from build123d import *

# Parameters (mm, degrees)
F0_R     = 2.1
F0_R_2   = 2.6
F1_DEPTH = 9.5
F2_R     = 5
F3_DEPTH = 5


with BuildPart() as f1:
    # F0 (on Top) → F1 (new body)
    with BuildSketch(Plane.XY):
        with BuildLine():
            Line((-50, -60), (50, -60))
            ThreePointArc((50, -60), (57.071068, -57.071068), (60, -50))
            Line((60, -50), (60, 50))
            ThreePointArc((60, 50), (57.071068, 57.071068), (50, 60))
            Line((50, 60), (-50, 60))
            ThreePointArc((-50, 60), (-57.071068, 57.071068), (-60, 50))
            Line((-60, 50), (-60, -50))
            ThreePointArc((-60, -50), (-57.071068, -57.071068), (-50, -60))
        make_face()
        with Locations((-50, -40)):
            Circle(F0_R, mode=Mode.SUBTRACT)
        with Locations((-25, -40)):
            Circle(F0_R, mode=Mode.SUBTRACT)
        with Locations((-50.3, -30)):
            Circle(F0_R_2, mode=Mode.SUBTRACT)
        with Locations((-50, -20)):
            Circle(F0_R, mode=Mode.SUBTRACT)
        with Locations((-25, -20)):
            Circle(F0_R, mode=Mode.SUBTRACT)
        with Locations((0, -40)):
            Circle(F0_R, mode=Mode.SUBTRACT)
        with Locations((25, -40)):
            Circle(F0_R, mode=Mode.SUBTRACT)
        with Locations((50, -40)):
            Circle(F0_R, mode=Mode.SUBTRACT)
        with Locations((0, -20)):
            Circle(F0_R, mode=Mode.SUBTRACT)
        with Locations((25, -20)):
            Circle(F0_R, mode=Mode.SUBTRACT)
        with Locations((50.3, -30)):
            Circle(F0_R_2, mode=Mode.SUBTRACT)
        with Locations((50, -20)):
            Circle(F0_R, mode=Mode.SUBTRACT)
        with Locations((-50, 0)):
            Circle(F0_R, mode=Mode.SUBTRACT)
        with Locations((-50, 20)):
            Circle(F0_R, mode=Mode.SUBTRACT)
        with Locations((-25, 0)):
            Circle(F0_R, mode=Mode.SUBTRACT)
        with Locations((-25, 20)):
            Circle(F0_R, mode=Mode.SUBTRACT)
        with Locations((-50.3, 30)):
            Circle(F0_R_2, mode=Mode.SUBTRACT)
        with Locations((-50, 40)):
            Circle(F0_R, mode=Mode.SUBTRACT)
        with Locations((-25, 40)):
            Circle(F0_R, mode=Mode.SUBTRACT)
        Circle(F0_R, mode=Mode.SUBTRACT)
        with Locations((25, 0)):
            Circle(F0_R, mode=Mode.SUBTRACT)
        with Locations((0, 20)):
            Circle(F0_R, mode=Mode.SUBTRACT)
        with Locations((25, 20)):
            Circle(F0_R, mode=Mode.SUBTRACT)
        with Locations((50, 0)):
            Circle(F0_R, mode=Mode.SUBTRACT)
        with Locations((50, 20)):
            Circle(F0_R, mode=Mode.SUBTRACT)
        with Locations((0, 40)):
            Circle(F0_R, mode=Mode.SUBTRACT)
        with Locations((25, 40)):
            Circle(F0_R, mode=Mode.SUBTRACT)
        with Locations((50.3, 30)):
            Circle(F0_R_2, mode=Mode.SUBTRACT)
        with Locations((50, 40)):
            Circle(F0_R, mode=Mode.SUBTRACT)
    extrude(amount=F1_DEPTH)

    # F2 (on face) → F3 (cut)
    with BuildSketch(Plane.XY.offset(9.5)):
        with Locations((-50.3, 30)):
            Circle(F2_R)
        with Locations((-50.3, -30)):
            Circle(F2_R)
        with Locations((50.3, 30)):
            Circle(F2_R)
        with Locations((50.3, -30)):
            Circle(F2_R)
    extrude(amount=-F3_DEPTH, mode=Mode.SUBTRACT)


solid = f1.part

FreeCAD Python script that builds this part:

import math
import FreeCAD as App
import Part
import Sketcher

V = App.Vector
Q = App.Units.Quantity

doc = App.newDocument("Part")
body = doc.addObject("PartDesign::Body", "Body")

# Sketch on XY plane
sketch1 = body.newObject("Sketcher::SketchObject", "Sketch")
sketch1.AttachmentSupport = (doc.getObject("XY_Plane"), [""])
sketch1.MapMode = "FlatFace"
sketch1.addGeometry([
    Part.LineSegment(V(-50, -60, 0), V(50, -60, 0)),  # 0
    Part.ArcOfCircle(Part.Circle(V(50.000001, -50.000001, 0), V(0, 0, 1), 9.999999), math.radians(-90.000004), math.radians(0.000004)),  # 1
    Part.LineSegment(V(60, -50, 0), V(60, 50, 0)),  # 2
    Part.ArcOfCircle(Part.Circle(V(50.000001, 50.000001, 0), V(0, 0, 1), 9.999999), math.radians(-0.000004), math.radians(90.000004)),  # 3
    Part.LineSegment(V(50, 60, 0), V(-50, 60, 0)),  # 4
    Part.ArcOfCircle(Part.Circle(V(-50.000001, 50.000001, 0), V(0, 0, 1), 9.999999), math.radians(89.999996), math.radians(180.000004)),  # 5
    Part.LineSegment(V(-60, 50, 0), V(-60, -50, 0)),  # 6
    Part.ArcOfCircle(Part.Circle(V(-50.000001, -50.000001, 0), V(0, 0, 1), 9.999999), math.radians(179.999996), math.radians(270.000004)),  # 7
    Part.Circle(V(-50, -40, 0), V(0, 0, 1), 2.1),  # 8
    Part.Circle(V(-50.3, -30, 0), V(0, 0, 1), 2.6),  # 9
    Part.Circle(V(-25, -40, 0), V(0, 0, 1), 2.1),  # 10
    Part.Circle(V(-50, -20, 0), V(0, 0, 1), 2.1),  # 11
    Part.Circle(V(-25, -20, 0), V(0, 0, 1), 2.1),  # 12
    Part.Circle(V(0, -40, 0), V(0, 0, 1), 2.1),  # 13
    Part.Circle(V(25, -40, 0), V(0, 0, 1), 2.1),  # 14
    Part.Circle(V(50, -40, 0), V(0, 0, 1), 2.1),  # 15
    Part.Circle(V(50.3, -30, 0), V(0, 0, 1), 2.6),  # 16
    Part.Circle(V(0, -20, 0), V(0, 0, 1), 2.1),  # 17
    Part.Circle(V(25, -20, 0), V(0, 0, 1), 2.1),  # 18
    Part.Circle(V(50, -20, 0), V(0, 0, 1), 2.1),  # 19
    Part.Circle(V(-50, 0, 0), V(0, 0, 1), 2.1),  # 20
    Part.Circle(V(-50, 20, 0), V(0, 0, 1), 2.1),  # 21
    Part.Circle(V(-25, 0, 0), V(0, 0, 1), 2.1),  # 22
    Part.Circle(V(-25, 20, 0), V(0, 0, 1), 2.1),  # 23
    Part.Circle(V(-50.3, 30, 0), V(0, 0, 1), 2.6),  # 24
    Part.Circle(V(-50, 40, 0), V(0, 0, 1), 2.1),  # 25
    Part.Circle(V(-25, 40, 0), V(0, 0, 1), 2.1),  # 26
    Part.Circle(V(0, 0, 0), V(0, 0, 1), 2.1),  # 27
    Part.Circle(V(25, 0, 0), V(0, 0, 1), 2.1),  # 28
    Part.Circle(V(0, 20, 0), V(0, 0, 1), 2.1),  # 29
    Part.Circle(V(25, 20, 0), V(0, 0, 1), 2.1),  # 30
    Part.Circle(V(50, 0, 0), V(0, 0, 1), 2.1),  # 31
    Part.Circle(V(50, 20, 0), V(0, 0, 1), 2.1),  # 32
    Part.Circle(V(0, 40, 0), V(0, 0, 1), 2.1),  # 33
    Part.Circle(V(25, 40, 0), V(0, 0, 1), 2.1),  # 34
    Part.Circle(V(50.3, 30, 0), V(0, 0, 1), 2.6),  # 35
    Part.Circle(V(50, 40, 0), V(0, 0, 1), 2.1),  # 36
], False)
sketch1.addConstraint([
    Sketcher.Constraint("Tangent", 0, 2, 1, 1),
    Sketcher.Constraint("Tangent", 1, 2, 2, 1),
    Sketcher.Constraint("Tangent", 2, 2, 3, 1),
    Sketcher.Constraint("Tangent", 3, 2, 4, 1),
    Sketcher.Constraint("Tangent", 4, 2, 5, 1),
    Sketcher.Constraint("Tangent", 5, 2, 6, 1),
    Sketcher.Constraint("Tangent", 6, 2, 7, 1),
    Sketcher.Constraint("Tangent", 7, 2, 0, 1),
    Sketcher.Constraint("Horizontal", 0),
    Sketcher.Constraint("Vertical", 2),
    Sketcher.Constraint("Horizontal", 4),
    Sketcher.Constraint("Vertical", 6),
    Sketcher.Constraint("Coincident", 27, 3, -1, 1),
    Sketcher.Constraint("Equal", 1, 3),
    Sketcher.Constraint("Equal", 3, 5),
    Sketcher.Constraint("Equal", 5, 7),
    Sketcher.Constraint("Equal", 8, 10),
    Sketcher.Constraint("Equal", 10, 11),
    Sketcher.Constraint("Equal", 11, 12),
    Sketcher.Constraint("Equal", 12, 13),
    Sketcher.Constraint("Equal", 13, 14),
    Sketcher.Constraint("Equal", 14, 15),
    Sketcher.Constraint("Equal", 9, 16),
    Sketcher.Constraint("Equal", 15, 17),
    Sketcher.Constraint("Equal", 17, 18),
    Sketcher.Constraint("Equal", 18, 19),
    Sketcher.Constraint("Equal", 19, 20),
    Sketcher.Constraint("Equal", 20, 21),
    Sketcher.Constraint("Equal", 21, 22),
    Sketcher.Constraint("Equal", 22, 23),
    Sketcher.Constraint("Equal", 16, 24),
    Sketcher.Constraint("Equal", 23, 25),
    Sketcher.Constraint("Equal", 25, 26),
    Sketcher.Constraint("Equal", 26, 27),
    Sketcher.Constraint("Equal", 27, 28),
    Sketcher.Constraint("Equal", 28, 29),
    Sketcher.Constraint("Equal", 29, 30),
    Sketcher.Constraint("Equal", 30, 31),
    Sketcher.Constraint("Equal", 31, 32),
    Sketcher.Constraint("Equal", 32, 33),
    Sketcher.Constraint("Equal", 33, 34),
    Sketcher.Constraint("Equal", 24, 35),
    Sketcher.Constraint("Equal", 34, 36),
    Sketcher.Constraint("Symmetric", 1, 3, 5, 3, -1, 1),
    Sketcher.Constraint("Symmetric", 19, 3, 21, 3, -1, 1),
    Sketcher.Constraint("Symmetric", 18, 3, 23, 3, -1, 1),
    Sketcher.Constraint("Symmetric", 16, 3, 24, 3, -1, 1),
    Sketcher.Constraint("Symmetric", 15, 3, 25, 3, -1, 1),
    Sketcher.Constraint("Symmetric", 14, 3, 26, 3, -1, 1),
    Sketcher.Constraint("Symmetric", 22, 3, 28, 3, -1, 1),
    Sketcher.Constraint("Symmetric", 17, 3, 29, 3, -1, 1),
    Sketcher.Constraint("Symmetric", 12, 3, 30, 3, -1, 1),
    Sketcher.Constraint("Symmetric", 20, 3, 31, 3, -1, 1),
    Sketcher.Constraint("Symmetric", 11, 3, 32, 3, -1, 1),
    Sketcher.Constraint("Symmetric", 13, 3, 33, 3, -1, 1),
    Sketcher.Constraint("Symmetric", 10, 3, 34, 3, -1, 1),
    Sketcher.Constraint("Symmetric", 9, 3, 35, 3, -1, 1),
    Sketcher.Constraint("Symmetric", 8, 3, 36, 3, -1, 1),
    Sketcher.Constraint("Symmetric", 10, 3, 14, 3, -2),
    Sketcher.Constraint("Symmetric", 8, 3, 15, 3, -2),
    Sketcher.Constraint("Symmetric", 9, 3, 16, 3, -2),
    Sketcher.Constraint("Symmetric", 12, 3, 18, 3, -2),
    Sketcher.Constraint("Symmetric", 11, 3, 19, 3, -2),
    Sketcher.Constraint("PointOnObject", 13, 3, -2),
    Sketcher.Constraint("PointOnObject", 17, 3, -2),
    Sketcher.Constraint("PointOnObject", 20, 3, -1),
    Sketcher.Constraint("PointOnObject", 22, 3, -1),
    Sketcher.Constraint("Horizontal", 8, 3, 10, 3),
    Sketcher.Constraint("Horizontal", 11, 3, 12, 3),
    Sketcher.Constraint("Horizontal", 10, 3, 13, 3),
    Sketcher.Constraint("Horizontal", 12, 3, 17, 3),
    Sketcher.Constraint("Vertical", 7, 3, 8, 3),
    Sketcher.Constraint("Vertical", 8, 3, 11, 3),
    Sketcher.Constraint("Vertical", 10, 3, 12, 3),
    Sketcher.Constraint("Vertical", 11, 3, 20, 3),
    Sketcher.Constraint("Vertical", 12, 3, 22, 3),
    Sketcher.Constraint("Equal", 4, 2),
    Sketcher.Constraint("Radius", 1, Q("9.999999 mm")),
    Sketcher.Constraint("Diameter", 8, Q("4.2 mm")),
    Sketcher.Constraint("Diameter", 9, Q("5.2 mm")),
    Sketcher.Constraint("DistanceX", 0, 1, 0, 2, Q("100 mm")),
    Sketcher.Constraint("DistanceY", 8, 3, -1, 1, Q("40 mm")),
    Sketcher.Constraint("DistanceY", 9, 3, -1, 1, Q("30 mm")),
    Sketcher.Constraint("DistanceX", 10, 3, -1, 1, Q("25 mm")),
    Sketcher.Constraint("DistanceY", 11, 3, -1, 1, Q("20 mm")),
    Sketcher.Constraint("DistanceX", 9, 3, -1, 1, Q("50.3 mm")),
])
pad1 = body.newObject("PartDesign::Pad", "Pad")
pad1.Profile = sketch1
pad1.Length = 9.5

# Sketch on XY plane
sketch2 = body.newObject("Sketcher::SketchObject", "Sketch001")
sketch2.AttachmentSupport = (doc.getObject("XY_Plane"), [""])
sketch2.MapMode = "FlatFace"
sketch2.AttachmentOffset = App.Placement(V(0, 0, 9.5), App.Rotation())
sketch2.addGeometry([
    Part.Circle(V(-50.3, 30, 0), V(0, 0, 1), 5),
    Part.Circle(V(-50.3, -30, 0), V(0, 0, 1), 5),
    Part.Circle(V(50.3, 30, 0), V(0, 0, 1), 5),
    Part.Circle(V(50.3, -30, 0), V(0, 0, 1), 5),
], False)
sketch2.addConstraint([
    Sketcher.Constraint("Equal", 0, 1),
    Sketcher.Constraint("Equal", 1, 2),
    Sketcher.Constraint("Equal", 2, 3),
    Sketcher.Constraint("Symmetric", 1, 3, 2, 3, -1, 1),
    Sketcher.Constraint("Symmetric", 0, 3, 3, 3, -1, 1),
    Sketcher.Constraint("Symmetric", 0, 3, 2, 3, -2),
    Sketcher.Constraint("Diameter", 0, Q("10 mm")),
    Sketcher.Constraint("DistanceY", -1, 1, 0, 3, Q("30 mm")),
    Sketcher.Constraint("DistanceX", 0, 3, -1, 1, Q("50.3 mm")),
])
pocket1 = body.newObject("PartDesign::Pocket", "Pocket")
pocket1.Profile = sketch2
pocket1.Length = 5

doc.recompute()
